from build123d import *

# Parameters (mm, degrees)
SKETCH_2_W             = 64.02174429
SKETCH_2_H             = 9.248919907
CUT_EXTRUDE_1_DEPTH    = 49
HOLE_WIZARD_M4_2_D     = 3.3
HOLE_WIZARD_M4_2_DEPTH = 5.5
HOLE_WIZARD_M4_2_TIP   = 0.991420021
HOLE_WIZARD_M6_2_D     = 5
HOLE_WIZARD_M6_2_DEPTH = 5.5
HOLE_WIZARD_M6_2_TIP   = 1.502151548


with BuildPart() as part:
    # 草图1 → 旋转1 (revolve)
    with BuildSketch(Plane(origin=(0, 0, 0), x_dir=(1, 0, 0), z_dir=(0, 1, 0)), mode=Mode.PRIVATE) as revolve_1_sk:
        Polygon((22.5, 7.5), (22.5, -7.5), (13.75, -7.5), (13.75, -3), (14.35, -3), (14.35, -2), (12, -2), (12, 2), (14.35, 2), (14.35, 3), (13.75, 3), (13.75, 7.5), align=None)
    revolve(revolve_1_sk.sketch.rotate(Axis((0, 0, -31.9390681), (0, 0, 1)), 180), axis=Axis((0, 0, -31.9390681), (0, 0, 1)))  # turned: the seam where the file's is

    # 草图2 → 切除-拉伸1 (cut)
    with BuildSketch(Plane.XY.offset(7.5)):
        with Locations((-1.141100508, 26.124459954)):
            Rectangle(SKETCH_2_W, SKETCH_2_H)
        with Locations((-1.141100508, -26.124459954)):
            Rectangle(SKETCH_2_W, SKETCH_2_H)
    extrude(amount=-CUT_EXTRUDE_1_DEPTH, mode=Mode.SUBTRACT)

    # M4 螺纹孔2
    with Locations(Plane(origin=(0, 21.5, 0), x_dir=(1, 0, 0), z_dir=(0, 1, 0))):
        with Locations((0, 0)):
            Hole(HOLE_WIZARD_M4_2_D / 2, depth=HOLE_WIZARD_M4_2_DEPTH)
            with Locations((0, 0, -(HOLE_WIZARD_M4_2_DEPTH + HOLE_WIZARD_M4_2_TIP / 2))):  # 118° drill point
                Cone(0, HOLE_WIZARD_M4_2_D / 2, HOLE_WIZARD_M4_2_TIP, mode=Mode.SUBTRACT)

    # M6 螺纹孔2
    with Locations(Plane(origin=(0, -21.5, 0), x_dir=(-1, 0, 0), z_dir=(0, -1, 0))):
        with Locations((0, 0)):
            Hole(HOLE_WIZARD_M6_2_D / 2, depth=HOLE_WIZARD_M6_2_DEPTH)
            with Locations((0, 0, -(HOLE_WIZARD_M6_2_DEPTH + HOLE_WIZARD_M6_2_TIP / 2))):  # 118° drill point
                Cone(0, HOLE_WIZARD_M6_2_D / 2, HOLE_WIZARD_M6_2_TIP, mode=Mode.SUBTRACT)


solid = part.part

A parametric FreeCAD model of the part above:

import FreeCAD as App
import Part
import Sketcher

V = App.Vector
Q = App.Units.Quantity


def add_polygon(sketch, points):
    """Adds a closed chain of lines whose ends are joined by coincident constraints."""
    first, n = sketch.GeometryCount, len(points)
    for a, b in zip(points, points[1:] + points[:1]):
        sketch.addGeometry(Part.LineSegment(App.Vector(*a, 0), App.Vector(*b, 0)), False)
    for i in range(n):
        sketch.addConstraint(Sketcher.Constraint("Coincident", first + i, 2, first + (i + 1) % n, 1))

doc = App.newDocument("Part")
body = doc.addObject("PartDesign::Body", "Body")

sketch1 = body.newObject("Sketcher::SketchObject", "Sketch")
sketch1.AttachmentSupport = (doc.getObject("XZ_Plane"), [""])
sketch1.MapMode = "FlatFace"
add_polygon(sketch1, [(22.5, 7.5), (22.5, -7.5), (13.8, -7.5), (13.8, -3), (14.3, -3), (14.3, -2), (12, -2), (12, 2), (14.3, 2), (14.3, 3), (13.8, 3), (13.8, 7.5)])
sketch1.addConstraint(Sketcher.Constraint("Vertical", 0))
sketch1.addConstraint(Sketcher.Constraint("Horizontal", 1))
sketch1.addConstraint(Sketcher.Constraint("Vertical", 2))
sketch1.addConstraint(Sketcher.Constraint("Horizontal", 3))
sketch1.addConstraint(Sketcher.Constraint("Vertical", 4))
sketch1.addConstraint(Sketcher.Constraint("Horizontal", 5))
sketch1.addConstraint(Sketcher.Constraint("Vertical", 6))
sketch1.addConstraint(Sketcher.Constraint("Horizontal", 7))
sketch1.addConstraint(Sketcher.Constraint("Vertical", 8))
sketch1.addConstraint(Sketcher.Constraint("Horizontal", 9))
sketch1.addConstraint(Sketcher.Constraint("Vertical", 10))
sketch1.addConstraint(Sketcher.Constraint("Horizontal", 11))
sketch1.addConstraint(Sketcher.Constraint("Symmetric", 4, 2, 7, 2, -1))
sketch1.addConstraint(Sketcher.Constraint("Symmetric", 2, 2, 9, 2, -1))
sketch1.addConstraint(Sketcher.Constraint("Equal", 2, 10))
sketch1.addConstraint(Sketcher.Constraint("DistanceY", 0, 2, 0, 1, Q("15 mm")))
sketch1.addConstraint(Sketcher.Constraint("DistanceY", 4, 1, 4, 2, Q("1 mm")))
sketch1.addConstraint(Sketcher.Constraint("DistanceY", 6, 1, 6, 2, Q("4 mm")))
sketch1.addConstraint(Sketcher.Constraint("DistanceX", 3, 1, 3, 2, Q("0.6 mm")))
sketch1.addConstraint(Sketcher.Constraint("DistanceX", -1, 1, 5, 2, Q("12 mm")))
sketch1.addConstraint(Sketcher.Constraint("DistanceX", 1, 2, 1, 1, Q("8.75 mm")))
sketch1.addConstraint(Sketcher.Constraint("DistanceX", 5, 2, 5, 1, Q("2.35 mm")))
revolution = body.newObject("PartDesign::Revolution", "Revolution")
revolution.Profile = sketch1
revolution.ReferenceAxis = (sketch1, ["V_Axis"])
revolution.Angle = 360

sketch2 = body.newObject("Sketcher::SketchObject", "Sketch001")
sketch2.AttachmentSupport = (doc.getObject("XY_Plane"), [""])
sketch2.MapMode = "FlatFace"
sketch2.AttachmentOffset = App.Placement(V(0, 0, 7.5), App.Rotation())
add_polygon(sketch2, [(-33, 31), (-33, 22), (31, 22), (31, 31)])
add_polygon(sketch2, [(-33, -22), (-33, -31), (31, -31), (31, -22)])
sketch2.addConstraint(Sketcher.Constraint("Vertical", 0))
sketch2.addConstraint(Sketcher.Constraint("Horizontal", 1))
sketch2.addConstraint(Sketcher.Constraint("Vertical", 2))
sketch2.addConstraint(Sketcher.Constraint("Horizontal", 3))
sketch2.addConstraint(Sketcher.Constraint("Vertical", 4))
sketch2.addConstraint(Sketcher.Constraint("Horizontal", 5))
sketch2.addConstraint(Sketcher.Constraint("Vertical", 6))
sketch2.addConstraint(Sketcher.Constraint("Horizontal", 7))
sketch2.addConstraint(Sketcher.Constraint("Symmetric", 3, 2, 4, 2, -1))
sketch2.addConstraint(Sketcher.Constraint("Symmetric", 1, 2, 6, 2, -1))
sketch2.addConstraint(Sketcher.Constraint("DistanceY", 6, 2, 1, 2, Q("43 mm")))
sketch2.addConstraint(Sketcher.Constraint("DistanceY", 0, 2, 0, 1, Q("9.24892 mm")))
sketch2.addConstraint(Sketcher.Constraint("DistanceX", 1, 1, 1, 2, Q("64.021744 mm")))
sketch2.addConstraint(Sketcher.Constraint("DistanceX", -1, 1, 1, 2, Q("30.869772 mm")))
pocket1 = body.newObject("PartDesign::Pocket", "Pocket")
pocket1.Profile = sketch2
pocket1.Length = 49

sketch3 = body.newObject("Sketcher::SketchObject", "Sketch002")
sketch3.AttachmentSupport = (doc.getObject("XZ_Plane"), [""])
sketch3.MapMode = "FlatFace"
sketch3.AttachmentOffset = App.Placement(V(0, 0, -21.5), App.Rotation())
sketch3.addGeometry(Part.Circle(V(0, 0, 0), V(0, 0, 1), 1.6), False)
sketch3.addConstraint(Sketcher.Constraint("Coincident", 0, 3, -1, 1))
sketch3.addConstraint(Sketcher.Constraint("Diameter", 0, Q("3.3 mm")))
doc.recompute()
hole = body.newObject("PartDesign::Hole", "Hole")
hole.Profile = sketch3
hole.ThreadType = "None"
hole.Diameter = 3.3
hole.DepthType = "Dimension"
hole.Depth = 5.5
hole.DrillPoint = "Angled"
hole.DrillPointAngle = 118
hole.Reversed = True

sketch4 = body.newObject("Sketcher::SketchObject", "Sketch003")
sketch4.AttachmentSupport = (doc.getObject("XZ_Plane"), [""])
sketch4.MapMode = "FlatFace"
sketch4.AttachmentOffset = App.Placement(V(0, 0, 21.5), App.Rotation())
sketch4.addGeometry(Part.Circle(V(0, 0, 0), V(0, 0, 1), 2.5), False)
sketch4.addConstraint(Sketcher.Constraint("Coincident", 0, 3, -1, 1))
sketch4.addConstraint(Sketcher.Constraint("Diameter", 0, Q("5 mm")))
doc.recompute()
hole2 = body.newObject("PartDesign::Hole", "Hole001")
hole2.Profile = sketch4
hole2.ThreadType = "None"
hole2.Diameter = 5
hole2.DepthType = "Dimension"
hole2.Depth = 5.5
hole2.DrillPoint = "Angled"
hole2.DrillPointAngle = 118

doc.recompute()
